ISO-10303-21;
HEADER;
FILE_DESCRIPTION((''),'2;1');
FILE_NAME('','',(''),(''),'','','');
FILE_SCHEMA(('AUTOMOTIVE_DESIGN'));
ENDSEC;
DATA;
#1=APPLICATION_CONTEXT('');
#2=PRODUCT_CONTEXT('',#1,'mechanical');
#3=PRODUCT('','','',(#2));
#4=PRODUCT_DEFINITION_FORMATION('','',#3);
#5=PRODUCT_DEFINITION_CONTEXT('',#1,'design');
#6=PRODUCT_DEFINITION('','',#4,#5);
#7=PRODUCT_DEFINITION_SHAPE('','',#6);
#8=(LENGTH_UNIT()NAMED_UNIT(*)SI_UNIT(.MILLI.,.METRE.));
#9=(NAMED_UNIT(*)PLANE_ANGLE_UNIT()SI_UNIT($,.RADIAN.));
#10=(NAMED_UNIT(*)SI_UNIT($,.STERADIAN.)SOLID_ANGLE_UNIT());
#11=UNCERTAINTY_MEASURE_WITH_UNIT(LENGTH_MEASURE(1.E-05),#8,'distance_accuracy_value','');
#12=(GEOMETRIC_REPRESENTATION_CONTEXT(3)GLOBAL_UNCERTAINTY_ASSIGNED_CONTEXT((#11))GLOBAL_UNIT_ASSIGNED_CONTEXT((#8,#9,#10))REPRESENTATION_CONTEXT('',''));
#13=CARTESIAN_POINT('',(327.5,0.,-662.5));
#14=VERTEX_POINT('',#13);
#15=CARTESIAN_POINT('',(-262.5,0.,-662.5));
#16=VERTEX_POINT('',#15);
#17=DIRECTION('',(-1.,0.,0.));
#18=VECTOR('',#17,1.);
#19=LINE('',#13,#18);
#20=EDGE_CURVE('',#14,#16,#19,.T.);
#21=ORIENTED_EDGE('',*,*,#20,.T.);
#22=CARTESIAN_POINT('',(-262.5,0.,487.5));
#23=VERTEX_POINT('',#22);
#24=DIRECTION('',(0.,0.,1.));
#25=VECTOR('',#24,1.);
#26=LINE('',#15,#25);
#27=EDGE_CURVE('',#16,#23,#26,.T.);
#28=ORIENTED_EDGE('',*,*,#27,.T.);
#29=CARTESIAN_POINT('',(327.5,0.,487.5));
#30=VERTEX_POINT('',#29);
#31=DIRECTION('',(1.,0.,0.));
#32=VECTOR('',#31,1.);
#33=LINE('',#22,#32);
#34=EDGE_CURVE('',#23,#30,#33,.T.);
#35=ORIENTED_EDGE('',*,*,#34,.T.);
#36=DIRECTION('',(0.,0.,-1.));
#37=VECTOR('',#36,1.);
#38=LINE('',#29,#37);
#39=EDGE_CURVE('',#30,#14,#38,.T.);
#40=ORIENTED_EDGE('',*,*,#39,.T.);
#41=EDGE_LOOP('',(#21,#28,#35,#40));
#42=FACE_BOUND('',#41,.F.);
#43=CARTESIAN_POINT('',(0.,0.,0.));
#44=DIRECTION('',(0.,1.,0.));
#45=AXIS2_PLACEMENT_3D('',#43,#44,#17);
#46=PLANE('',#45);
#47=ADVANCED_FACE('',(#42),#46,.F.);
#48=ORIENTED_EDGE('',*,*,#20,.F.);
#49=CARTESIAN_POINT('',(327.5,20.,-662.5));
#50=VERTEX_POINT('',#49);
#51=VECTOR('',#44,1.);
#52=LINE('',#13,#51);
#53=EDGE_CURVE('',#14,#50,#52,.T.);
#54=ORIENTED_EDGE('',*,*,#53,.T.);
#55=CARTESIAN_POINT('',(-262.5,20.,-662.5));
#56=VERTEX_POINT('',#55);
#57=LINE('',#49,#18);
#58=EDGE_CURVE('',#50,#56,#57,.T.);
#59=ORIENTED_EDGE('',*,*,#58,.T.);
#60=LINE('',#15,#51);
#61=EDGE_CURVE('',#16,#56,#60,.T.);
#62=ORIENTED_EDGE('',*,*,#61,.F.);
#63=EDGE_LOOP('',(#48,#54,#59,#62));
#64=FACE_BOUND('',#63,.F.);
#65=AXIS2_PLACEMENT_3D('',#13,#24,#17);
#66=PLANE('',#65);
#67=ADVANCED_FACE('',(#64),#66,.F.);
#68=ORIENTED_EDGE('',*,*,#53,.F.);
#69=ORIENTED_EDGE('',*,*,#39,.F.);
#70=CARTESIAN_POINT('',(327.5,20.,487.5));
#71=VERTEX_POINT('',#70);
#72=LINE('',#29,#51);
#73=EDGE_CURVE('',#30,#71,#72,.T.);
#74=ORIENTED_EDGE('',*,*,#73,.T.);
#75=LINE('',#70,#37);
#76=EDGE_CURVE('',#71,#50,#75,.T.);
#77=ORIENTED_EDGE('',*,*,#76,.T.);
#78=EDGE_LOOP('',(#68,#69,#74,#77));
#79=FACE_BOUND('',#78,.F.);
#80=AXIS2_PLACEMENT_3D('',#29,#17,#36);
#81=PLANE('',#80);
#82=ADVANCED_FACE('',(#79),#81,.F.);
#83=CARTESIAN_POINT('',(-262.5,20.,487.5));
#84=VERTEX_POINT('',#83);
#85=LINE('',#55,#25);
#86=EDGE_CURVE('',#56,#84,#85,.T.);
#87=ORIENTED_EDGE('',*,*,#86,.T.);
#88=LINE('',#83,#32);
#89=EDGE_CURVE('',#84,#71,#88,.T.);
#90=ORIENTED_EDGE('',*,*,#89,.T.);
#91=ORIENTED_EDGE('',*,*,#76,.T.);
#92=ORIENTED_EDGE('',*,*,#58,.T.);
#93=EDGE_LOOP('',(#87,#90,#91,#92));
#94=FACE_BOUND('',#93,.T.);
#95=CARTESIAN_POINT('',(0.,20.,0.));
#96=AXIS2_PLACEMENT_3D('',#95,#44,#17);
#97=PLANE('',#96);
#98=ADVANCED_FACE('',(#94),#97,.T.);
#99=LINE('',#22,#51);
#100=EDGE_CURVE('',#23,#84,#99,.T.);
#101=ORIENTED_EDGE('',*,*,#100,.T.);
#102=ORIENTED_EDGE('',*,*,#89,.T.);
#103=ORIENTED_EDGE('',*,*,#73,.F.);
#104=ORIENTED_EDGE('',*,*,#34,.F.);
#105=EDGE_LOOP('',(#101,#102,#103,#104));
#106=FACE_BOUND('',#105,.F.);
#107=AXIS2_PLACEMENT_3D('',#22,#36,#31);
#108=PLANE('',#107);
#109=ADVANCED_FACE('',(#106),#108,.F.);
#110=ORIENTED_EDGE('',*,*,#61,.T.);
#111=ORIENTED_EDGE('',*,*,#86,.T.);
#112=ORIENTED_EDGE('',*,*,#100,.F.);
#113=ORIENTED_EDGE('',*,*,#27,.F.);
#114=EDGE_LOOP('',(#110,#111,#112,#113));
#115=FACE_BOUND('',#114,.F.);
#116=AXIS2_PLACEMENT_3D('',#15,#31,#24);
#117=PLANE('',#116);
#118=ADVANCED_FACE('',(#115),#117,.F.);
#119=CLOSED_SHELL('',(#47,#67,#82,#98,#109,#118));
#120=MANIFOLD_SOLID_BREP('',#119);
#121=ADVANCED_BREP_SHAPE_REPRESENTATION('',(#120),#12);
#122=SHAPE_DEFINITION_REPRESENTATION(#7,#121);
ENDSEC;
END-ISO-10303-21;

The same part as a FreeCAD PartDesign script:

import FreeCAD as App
import Part
import Sketcher

doc = App.newDocument("Part")
body = doc.addObject("PartDesign::Body", "Body")

# Sketch on XZ plane
sketch1 = body.newObject("Sketcher::SketchObject", "Sketch")
sketch1.AttachmentSupport = (doc.getObject("XZ_Plane"), [""])
sketch1.MapMode = "FlatFace"
sketch1.addGeometry([
    Part.LineSegment(App.Vector(-262.5, -662.5, 0), App.Vector(-262.5, 487.5, 0)),
    Part.LineSegment(App.Vector(-262.5, 487.5, 0), App.Vector(327.5, 487.5, 0)),
    Part.LineSegment(App.Vector(327.5, 487.5, 0), App.Vector(327.5, -662.5, 0)),
    Part.LineSegment(App.Vector(327.5, -662.5, 0), App.Vector(-262.5, -662.5, 0)),
], False)
sketch1.addConstraint([
    Sketcher.Constraint("Coincident", 0, 2, 1, 1),
    Sketcher.Constraint("Coincident", 1, 2, 2, 1),
    Sketcher.Constraint("Coincident", 2, 2, 3, 1),
    Sketcher.Constraint("Coincident", 3, 2, 0, 1),
    Sketcher.Constraint("Vertical", 0),
    Sketcher.Constraint("Horizontal", 1),
    Sketcher.Constraint("Vertical", 2),
    Sketcher.Constraint("Horizontal", 3),
    Sketcher.Constraint("DistanceX", 1, 1, 1, 2, 590.0),
    Sketcher.Constraint("DistanceY", 0, 1, 0, 2, 1150.0),
    Sketcher.Constraint("DistanceX", 0, 2, -1, 1, 262.5),
    Sketcher.Constraint("DistanceY", -1, 1, 0, 2, 487.5),
])
pad1 = body.newObject("PartDesign::Pad", "Pad")
pad1.Profile = sketch1
pad1.Length = 20
pad1.Reversed = True

doc.recompute()
